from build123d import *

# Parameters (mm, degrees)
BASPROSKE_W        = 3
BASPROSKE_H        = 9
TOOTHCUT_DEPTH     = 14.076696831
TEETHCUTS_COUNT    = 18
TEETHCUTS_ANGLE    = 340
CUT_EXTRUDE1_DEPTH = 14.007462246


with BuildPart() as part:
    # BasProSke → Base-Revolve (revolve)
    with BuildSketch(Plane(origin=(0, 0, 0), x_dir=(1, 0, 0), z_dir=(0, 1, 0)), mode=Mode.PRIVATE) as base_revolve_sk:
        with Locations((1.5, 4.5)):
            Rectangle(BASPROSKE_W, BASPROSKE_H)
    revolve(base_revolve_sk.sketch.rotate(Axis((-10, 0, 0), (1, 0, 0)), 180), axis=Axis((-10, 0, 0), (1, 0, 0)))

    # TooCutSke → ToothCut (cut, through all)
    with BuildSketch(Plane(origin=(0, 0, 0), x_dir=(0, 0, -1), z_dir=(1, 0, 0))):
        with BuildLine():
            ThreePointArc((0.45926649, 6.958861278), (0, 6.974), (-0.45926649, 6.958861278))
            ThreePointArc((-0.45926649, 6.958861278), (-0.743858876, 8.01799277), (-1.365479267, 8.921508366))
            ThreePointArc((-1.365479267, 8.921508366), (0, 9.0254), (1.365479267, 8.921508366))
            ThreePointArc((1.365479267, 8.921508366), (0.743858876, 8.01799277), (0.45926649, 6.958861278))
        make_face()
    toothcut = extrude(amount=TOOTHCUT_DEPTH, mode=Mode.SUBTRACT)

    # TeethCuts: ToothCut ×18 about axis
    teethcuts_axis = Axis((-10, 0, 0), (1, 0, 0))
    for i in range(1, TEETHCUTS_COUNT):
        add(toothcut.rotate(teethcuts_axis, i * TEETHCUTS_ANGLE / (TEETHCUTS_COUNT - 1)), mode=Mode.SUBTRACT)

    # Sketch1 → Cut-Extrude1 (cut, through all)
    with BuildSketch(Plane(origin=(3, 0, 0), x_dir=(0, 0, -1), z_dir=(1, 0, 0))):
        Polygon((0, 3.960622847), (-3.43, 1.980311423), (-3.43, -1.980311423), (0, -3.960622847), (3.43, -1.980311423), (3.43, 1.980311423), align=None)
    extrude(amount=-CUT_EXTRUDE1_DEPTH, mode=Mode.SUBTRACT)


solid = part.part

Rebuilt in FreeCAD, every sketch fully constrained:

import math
import FreeCAD as App
import Part
import Sketcher
Q = App.Units.Quantity

doc = App.newDocument("Part")
body = doc.addObject("PartDesign::Body", "Body")

# Sketch on XZ plane
sketch1 = body.newObject("Sketcher::SketchObject", "Sketch")
sketch1.AttachmentSupport = (doc.getObject("XZ_Plane"), [""])
sketch1.MapMode = "FlatFace"
sketch1.addGeometry(Part.LineSegment(App.Vector(0, -9, 0), App.Vector(0, 0, 0)), False)
sketch1.addGeometry(Part.LineSegment(App.Vector(0, 0, 0), App.Vector(3, 0, 0)), False)
sketch1.addGeometry(Part.LineSegment(App.Vector(3, 0, 0), App.Vector(3, -9, 0)), False)
sketch1.addGeometry(Part.LineSegment(App.Vector(3, -9, 0), App.Vector(0, -9, 0)), False)
sketch1.addConstraint(Sketcher.Constraint("Coincident", 0, 2, 1, 1))
sketch1.addConstraint(Sketcher.Constraint("Coincident", 1, 2, 2, 1))
sketch1.addConstraint(Sketcher.Constraint("Coincident", 2, 2, 3, 1))
sketch1.addConstraint(Sketcher.Constraint("Coincident", 3, 2, 0, 1))
sketch1.addConstraint(Sketcher.Constraint("Vertical", 0))
sketch1.addConstraint(Sketcher.Constraint("Horizontal", 1))
sketch1.addConstraint(Sketcher.Constraint("Vertical", 2))
sketch1.addConstraint(Sketcher.Constraint("Horizontal", 3))
sketch1.addConstraint(Sketcher.Constraint("Coincident", 0, 2, -1, 1))
sketch1.addConstraint(Sketcher.Constraint("DistanceX", 1, 1, 1, 2, Q("3 mm")))
sketch1.addConstraint(Sketcher.Constraint("DistanceY", 0, 1, 0, 2, Q("9 mm")))
revolution = body.newObject("PartDesign::Revolution", "Revolution")
revolution.Profile = sketch1
revolution.ReferenceAxis = (sketch1, ["H_Axis"])
revolution.Angle = 360

# Sketch on YZ plane
sketch2 = body.newObject("Sketcher::SketchObject", "Sketch001")
sketch2.AttachmentSupport = (doc.getObject("YZ_Plane"), [""])
sketch2.MapMode = "FlatFace"
sketch2.addGeometry(Part.ArcOfCircle(Part.Circle(App.Vector(0, 0, 0), App.Vector(0, 0, 1), 7), math.radians(-3.78), math.radians(3.78)), False)
sketch2.addGeometry(Part.ArcOfCircle(Part.Circle(App.Vector(6.7, -3.7, 0), App.Vector(0, 0, 1), 3.2), math.radians(46), math.radians(85)), False)
sketch2.addGeometry(Part.ArcOfCircle(Part.Circle(App.Vector(0, 0, 0), App.Vector(0, 0, 1), 9), math.radians(-8.7), math.radians(8.7)), False)
sketch2.addGeometry(Part.ArcOfCircle(Part.Circle(App.Vector(6.7, 3.7, 0), App.Vector(0, 0, 1), 3.2), math.radians(-85), math.radians(-46)), False)
sketch2.addConstraint(Sketcher.Constraint("Coincident", 0, 1, 1, 2))
sketch2.addConstraint(Sketcher.Constraint("Coincident", 1, 1, 2, 1))
sketch2.addConstraint(Sketcher.Constraint("Coincident", 2, 2, 3, 2))
sketch2.addConstraint(Sketcher.Constraint("Coincident", 3, 1, 0, 2))
sketch2.addConstraint(Sketcher.Constraint("Coincident", 0, 3, -1, 1))
sketch2.addConstraint(Sketcher.Constraint("Coincident", 2, 3, -1, 1))
sketch2.addConstraint(Sketcher.Constraint("Equal", 1, 3))
sketch2.addConstraint(Sketcher.Constraint("Symmetric", 1, 3, 3, 3, -1))
sketch2.addConstraint(Sketcher.Constraint("Radius", 1, Q("3.24 mm")))
sketch2.addConstraint(Sketcher.Constraint("Radius", 0, Q("6.974 mm")))
sketch2.addConstraint(Sketcher.Constraint("Radius", 2, Q("9.0254 mm")))
sketch2.addConstraint(Sketcher.Constraint("DistanceY", 0, 1, 3, 3, Q("4.1447 mm")))
sketch2.addConstraint(Sketcher.Constraint("DistanceX", -1, 1, 1, 3, Q("6.65978 mm")))
pocket1 = body.newObject("PartDesign::Pocket", "Pocket")
pocket1.Profile = sketch2
pocket1.Type = "ThroughAll"
pocket1.Reversed = True
doc.recompute()

polarpattern = body.newObject("PartDesign::PolarPattern", "PolarPattern")
polarpattern.Originals = [pocket1]
polarpattern.Axis = (doc.getObject("X_Axis"), [""])
polarpattern.Angle = 360
polarpattern.Occurrences = 18
body.Tip = polarpattern

# Sketch on YZ plane
sketch3 = body.newObject("Sketcher::SketchObject", "Sketch002")
sketch3.AttachmentSupport = (doc.getObject("YZ_Plane"), [""])
sketch3.MapMode = "FlatFace"
sketch3.AttachmentOffset = App.Placement(App.Vector(0, 0, 3), App.Rotation())
sketch3.addGeometry(Part.LineSegment(App.Vector(4, 0, 0), App.Vector(2, 3.4, 0)), False)
sketch3.addGeometry(Part.LineSegment(App.Vector(2, 3.4, 0), App.Vector(-2, 3.4, 0)), False)
sketch3.addGeometry(Part.LineSegment(App.Vector(-2, 3.4, 0), App.Vector(-4, 0, 0)), False)
sketch3.addGeometry(Part.LineSegment(App.Vector(-4, 0, 0), App.Vector(-2, -3.4, 0)), False)
sketch3.addGeometry(Part.LineSegment(App.Vector(-2, -3.4, 0), App.Vector(2, -3.4, 0)), False)
sketch3.addGeometry(Part.LineSegment(App.Vector(2, -3.4, 0), App.Vector(4, 0, 0)), False)
sketch3.addConstraint(Sketcher.Constraint("Coincident", 0, 2, 1, 1))
sketch3.addConstraint(Sketcher.Constraint("Coincident", 1, 2, 2, 1))
sketch3.addConstraint(Sketcher.Constraint("Coincident", 2, 2, 3, 1))
sketch3.addConstraint(Sketcher.Constraint("Coincident", 3, 2, 4, 1))
sketch3.addConstraint(Sketcher.Constraint("Coincident", 4, 2, 5, 1))
sketch3.addConstraint(Sketcher.Constraint("Coincident", 5, 2, 0, 1))
sketch3.addConstraint(Sketcher.Constraint("Horizontal", 1))
sketch3.addConstraint(Sketcher.Constraint("Horizontal", 4))
sketch3.addConstraint(Sketcher.Constraint("Symmetric", 0, 2, 3, 2, -1, 1))
sketch3.addConstraint(Sketcher.Constraint("Symmetric", 2, 2, 5, 2, -1, 1))
sketch3.addConstraint(Sketcher.Constraint("PointOnObject", 2, 2, -1))
sketch3.addConstraint(Sketcher.Constraint("Parallel", 2, 5))
sketch3.addConstraint(Sketcher.Constraint("Vertical", 1, 2, 3, 2))
sketch3.addConstraint(Sketcher.Constraint("Angle", 0, Q("120 deg")))
sketch3.addConstraint(Sketcher.Constraint("DistanceY", -1, 1, 0, 2, Q("3.43 mm")))
sketch3.addConstraint(Sketcher.Constraint("DistanceX", 1, 2, 1, 1, Q("3.960623 mm")))
pocket2 = body.newObject("PartDesign::Pocket", "Pocket001")
pocket2.Profile = sketch3
pocket2.Type = "ThroughAll"

doc.recompute()
